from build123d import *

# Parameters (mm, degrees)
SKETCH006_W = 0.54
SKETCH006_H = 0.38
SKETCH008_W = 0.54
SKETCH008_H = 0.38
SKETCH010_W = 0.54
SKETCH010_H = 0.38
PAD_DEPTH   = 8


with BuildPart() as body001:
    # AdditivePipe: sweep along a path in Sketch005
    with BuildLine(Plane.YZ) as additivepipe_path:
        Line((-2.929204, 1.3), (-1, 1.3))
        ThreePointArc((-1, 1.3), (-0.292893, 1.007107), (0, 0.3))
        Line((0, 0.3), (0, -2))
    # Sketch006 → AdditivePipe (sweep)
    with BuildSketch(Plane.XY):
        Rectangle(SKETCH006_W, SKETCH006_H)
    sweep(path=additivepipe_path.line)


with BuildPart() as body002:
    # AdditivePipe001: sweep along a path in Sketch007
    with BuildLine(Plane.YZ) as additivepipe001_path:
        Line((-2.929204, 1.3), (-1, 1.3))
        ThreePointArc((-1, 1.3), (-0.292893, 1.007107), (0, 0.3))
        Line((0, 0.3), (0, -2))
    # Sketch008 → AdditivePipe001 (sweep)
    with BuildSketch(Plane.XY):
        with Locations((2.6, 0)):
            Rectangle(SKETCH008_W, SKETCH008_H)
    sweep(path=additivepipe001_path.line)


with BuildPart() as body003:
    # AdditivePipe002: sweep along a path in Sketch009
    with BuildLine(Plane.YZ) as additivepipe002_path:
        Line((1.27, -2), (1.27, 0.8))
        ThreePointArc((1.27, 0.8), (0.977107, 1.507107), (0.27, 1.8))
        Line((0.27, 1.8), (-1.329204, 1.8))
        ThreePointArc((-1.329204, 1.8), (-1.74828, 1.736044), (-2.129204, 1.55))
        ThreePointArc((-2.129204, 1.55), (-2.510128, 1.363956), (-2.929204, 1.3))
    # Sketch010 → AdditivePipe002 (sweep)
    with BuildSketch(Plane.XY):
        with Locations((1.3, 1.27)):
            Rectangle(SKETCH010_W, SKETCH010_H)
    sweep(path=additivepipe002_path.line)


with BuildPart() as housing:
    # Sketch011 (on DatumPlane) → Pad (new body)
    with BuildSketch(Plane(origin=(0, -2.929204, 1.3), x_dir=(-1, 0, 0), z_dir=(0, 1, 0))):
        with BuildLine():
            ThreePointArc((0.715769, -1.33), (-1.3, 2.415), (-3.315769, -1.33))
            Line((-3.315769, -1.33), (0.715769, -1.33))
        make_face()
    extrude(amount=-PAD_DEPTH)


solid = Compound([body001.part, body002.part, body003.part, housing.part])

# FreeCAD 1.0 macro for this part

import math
import FreeCAD as App
import Part
import Sketcher


def add_polygon(sketch, points):
    """Adds a closed chain of lines whose ends are joined by coincident constraints."""
    first, n = sketch.GeometryCount, len(points)
    for a, b in zip(points, points[1:] + points[:1]):
        sketch.addGeometry(Part.LineSegment(App.Vector(*a, 0), App.Vector(*b, 0)), False)
    for i in range(n):
        sketch.addConstraint(Sketcher.Constraint("Coincident", first + i, 2, first + (i + 1) % n, 1))

doc = App.newDocument("Part")
params = doc.addObject("Spreadsheet::Sheet", "Params")
for row, (alias, value) in enumerate([
    ("sketch1_width", "0.54 mm"),
    ("sketch1_height", "0.38 mm"),
    ("sketch2_radius", "0.999999 mm"),
    ("sketch2_height", "2.3 mm"),
    ("sketch3_width", "0.54 mm"),
    ("sketch3_height", "0.38 mm"),
    ("sketch4_radius", "0.999999 mm"),
    ("sketch4_height", "2.3 mm"),
    ("sketch5_width", "0.54 mm"),
    ("sketch5_height", "0.38 mm"),
    ("sketch6_radius", "0.999999 mm"),
    ("sketch6_height", "2.8 mm"),
    ("pad1_length", "8 mm"),
], start=1):
    params.set(f"A{row}", alias)
    params.set(f"B{row}", "=" + value)
    params.setAlias(f"B{row}", alias)

body = doc.addObject("PartDesign::Body", "Body")

# Sketch on XY plane
sketch1 = body.newObject("Sketcher::SketchObject", "Sketch")
sketch1.AttachmentSupport = (doc.getObject("XY_Plane"), [""])
sketch1.MapMode = "FlatFace"
add_polygon(sketch1, [(-0.27, 0.19), (-0.27, -0.19), (0.27, -0.19), (0.27, 0.19)])  # lines 0-3
sketch1.addConstraint([
    Sketcher.Constraint("Vertical", 0),
    Sketcher.Constraint("Horizontal", 1),
    Sketcher.Constraint("Vertical", 2),
    Sketcher.Constraint("Horizontal", 3),
    Sketcher.Constraint("Symmetric", 0, 2, 2, 2, -1, 1),
    Sketcher.Constraint("DistanceX", 1, 1, 1, 2, 0.54),
    Sketcher.Constraint("DistanceY", 0, 2, 0, 1, 0.38),
])
sketch1.setExpression("Constraints[9]", "Params.sketch1_width")
sketch1.setExpression("Constraints[10]", "Params.sketch1_height")

# Sketch on YZ plane
sketch2 = body.newObject("Sketcher::SketchObject", "Sketch001")
sketch2.AttachmentSupport = (doc.getObject("YZ_Plane"), [""])
sketch2.MapMode = "FlatFace"
sketch2.addGeometry([
    Part.LineSegment(App.Vector(-2.929204, 1.3, 0), App.Vector(-1, 1.3, 0)),
    Part.ArcOfCircle(Part.Circle(App.Vector(-0.999999, 0.300001, 0), App.Vector(0, 0, 1), 0.999999), math.radians(-0.000043), math.radians(90.000043)),
    Part.LineSegment(App.Vector(0, 0.3, 0), App.Vector(0, -2, 0)),
], False)
sketch2.addConstraint([
    Sketcher.Constraint("Tangent", 0, 2, 1, 2),
    Sketcher.Constraint("Tangent", 1, 1, 2, 1),
    Sketcher.Constraint("Horizontal", 0),
    Sketcher.Constraint("Vertical", 2),
    Sketcher.Constraint("PointOnObject", 1, 1, -2),
    Sketcher.Constraint("Radius", 1, 0.999999),
    Sketcher.Constraint("DistanceY", 2, 2, 2, 1, 2.3),
    Sketcher.Constraint("DistanceY", 2, 2, -1, 1, 2.0),
    Sketcher.Constraint("DistanceX", 0, 1, 0, 2, 1.929204),
])
sketch2.setExpression("Constraints[5]", "Params.sketch2_radius")
sketch2.setExpression("Constraints[6]", "Params.sketch2_height")
doc.recompute()

additivepipe = body.newObject("PartDesign::AdditivePipe", "AdditivePipe")
additivepipe.Profile = sketch1
additivepipe.Spine = (sketch2, ["Edge1", "Edge2", "Edge3"])
body2 = doc.addObject("PartDesign::Body", "Body001")

# Sketch on XY plane
sketch3 = body2.newObject("Sketcher::SketchObject", "Sketch002")
sketch3.AttachmentSupport = (doc.getObject("XY_Plane001"), [""])
sketch3.MapMode = "FlatFace"
add_polygon(sketch3, [(2.33, 0.19), (2.33, -0.19), (2.87, -0.19), (2.87, 0.19)])  # lines 0-3
sketch3.addConstraint([
    Sketcher.Constraint("Vertical", 0),
    Sketcher.Constraint("Horizontal", 1),
    Sketcher.Constraint("Vertical", 2),
    Sketcher.Constraint("Horizontal", 3),
    Sketcher.Constraint("DistanceX", 1, 1, 1, 2, 0.54),
    Sketcher.Constraint("DistanceY", 0, 2, 0, 1, 0.38),
    Sketcher.Constraint("DistanceX", -1, 1, 0, 2, 2.33),
    Sketcher.Constraint("DistanceY", 0, 2, -1, 1, 0.19),
])
sketch3.setExpression("Constraints[8]", "Params.sketch3_width")
sketch3.setExpression("Constraints[9]", "Params.sketch3_height")

# Sketch on YZ plane
sketch4 = body2.newObject("Sketcher::SketchObject", "Sketch003")
sketch4.AttachmentSupport = (doc.getObject("YZ_Plane001"), [""])
sketch4.MapMode = "FlatFace"
sketch4.addGeometry([
    Part.LineSegment(App.Vector(-2.929204, 1.3, 0), App.Vector(-1, 1.3, 0)),
    Part.ArcOfCircle(Part.Circle(App.Vector(-0.999999, 0.300001, 0), App.Vector(0, 0, 1), 0.999999), math.radians(-0.000043), math.radians(90.000043)),
    Part.LineSegment(App.Vector(0, 0.3, 0), App.Vector(0, -2, 0)),
], False)
sketch4.addConstraint([
    Sketcher.Constraint("Tangent", 0, 2, 1, 2),
    Sketcher.Constraint("Tangent", 1, 1, 2, 1),
    Sketcher.Constraint("Horizontal", 0),
    Sketcher.Constraint("Vertical", 2),
    Sketcher.Constraint("PointOnObject", 1, 1, -2),
    Sketcher.Constraint("Radius", 1, 0.999999),
    Sketcher.Constraint("DistanceY", 2, 2, 2, 1, 2.3),
    Sketcher.Constraint("DistanceY", 2, 2, -1, 1, 2.0),
    Sketcher.Constraint("DistanceX", 0, 1, 0, 2, 1.929204),
])
sketch4.setExpression("Constraints[5]", "Params.sketch4_radius")
sketch4.setExpression("Constraints[6]", "Params.sketch4_height")
doc.recompute()

additivepipe2 = body2.newObject("PartDesign::AdditivePipe", "AdditivePipe001")
additivepipe2.Profile = sketch3
additivepipe2.Spine = (sketch4, ["Edge1", "Edge2", "Edge3"])
body3 = doc.addObject("PartDesign::Body", "Body002")

# Sketch on XY plane
sketch5 = body3.newObject("Sketcher::SketchObject", "Sketch004")
sketch5.AttachmentSupport = (doc.getObject("XY_Plane002"), [""])
sketch5.MapMode = "FlatFace"
add_polygon(sketch5, [(1.03, 1.46), (1.03, 1.08), (1.57, 1.08), (1.57, 1.46)])  # lines 0-3
sketch5.addConstraint([
    Sketcher.Constraint("Vertical", 0),
    Sketcher.Constraint("Horizontal", 1),
    Sketcher.Constraint("Vertical", 2),
    Sketcher.Constraint("Horizontal", 3),
    Sketcher.Constraint("DistanceX", 1, 1, 1, 2, 0.54),
    Sketcher.Constraint("DistanceY", 0, 2, 0, 1, 0.38),
    Sketcher.Constraint("DistanceX", -1, 1, 0, 2, 1.03),
    Sketcher.Constraint("DistanceY", -1, 1, 0, 2, 1.08),
])
sketch5.setExpression("Constraints[8]", "Params.sketch5_width")
sketch5.setExpression("Constraints[9]", "Params.sketch5_height")

# Sketch on YZ plane
sketch6 = body3.newObject("Sketcher::SketchObject", "Sketch005")
sketch6.AttachmentSupport = (doc.getObject("YZ_Plane002"), [""])
sketch6.MapMode = "FlatFace"
sketch6.addGeometry([
    Part.LineSegment(App.Vector(1.27, -2, 0), App.Vector(1.27, 0.8, 0)),  # 0
    Part.ArcOfCircle(Part.Circle(App.Vector(0.270001, 0.800001, 0), App.Vector(0, 0, 1), 0.999999), math.radians(-0.000043), math.radians(90.000043)),  # 1
    Part.LineSegment(App.Vector(0.27, 1.8, 0), App.Vector(-1.329204, 1.8, 0)),  # 2
    Part.ArcOfCircle(Part.Circle(App.Vector(-1.329201, 0.39499, 0), App.Vector(0, 0, 1), 1.40501), math.radians(90.000123), math.radians(124.707926)),  # 3
    Part.ArcOfCircle(Part.Circle(App.Vector(-2.929207, 2.70501, 0), App.Vector(0, 0, 1), 1.40501), math.radians(-89.999877), math.radians(-55.292074)),  # 4
], False)
sketch6.addConstraint([
    Sketcher.Constraint("Tangent", 0, 2, 1, 1),
    Sketcher.Constraint("Tangent", 1, 2, 2, 1),
    Sketcher.Constraint("Coincident", 2, 2, 3, 1),
    Sketcher.Constraint("Tangent", 3, 2, 4, 2),
    Sketcher.Constraint("Vertical", 0),
    Sketcher.Constraint("Horizontal", 2),
    Sketcher.Constraint("Equal", 3, 4),
    Sketcher.Constraint("Radius", 1, 0.999999),
    Sketcher.Constraint("DistanceY", 0, 1, 0, 2, 2.8),
    Sketcher.Constraint("DistanceY", 0, 1, -1, 1, 2.0),
    Sketcher.Constraint("DistanceY", -1, 1, 4, 1, 1.3),
    Sketcher.Constraint("DistanceX", 3, 2, 2, 2, 0.8),
    Sketcher.Constraint("DistanceX", 4, 1, 3, 2, 0.8),
    Sketcher.Constraint("DistanceX", -1, 1, 1, 3, 0.270001),
    Sketcher.Constraint("Radius", 3, 1.40501),
    Sketcher.Constraint("DistanceX", 3, 3, -1, 1, 1.329201),
])
sketch6.setExpression("Constraints[7]", "Params.sketch6_radius")
sketch6.setExpression("Constraints[8]", "Params.sketch6_height")
doc.recompute()

additivepipe3 = body3.newObject("PartDesign::AdditivePipe", "AdditivePipe002")
additivepipe3.Profile = sketch5
additivepipe3.Spine = (sketch6, ["Edge1", "Edge2", "Edge3", "Edge4", "Edge5"])
body4 = doc.addObject("PartDesign::Body", "Body003")

# Sketch on XZ plane
sketch7 = body4.newObject("Sketcher::SketchObject", "Sketch006")
sketch7.AttachmentSupport = (doc.getObject("XZ_Plane003"), [""])
sketch7.MapMode = "FlatFace"
sketch7.AttachmentOffset = App.Placement(App.Vector(0, 0, 2.929204), App.Rotation())
sketch7.addGeometry([
    Part.ArcOfCircle(Part.Circle(App.Vector(1.3, 1.3, 0), App.Vector(0, 0, 1), 2.415), math.radians(-33.416742), math.radians(213.416742)),
    Part.LineSegment(App.Vector(3.315769, -0.03, 0), App.Vector(-0.715769, -0.03, 0)),
], False)
sketch7.addConstraint([
    Sketcher.Constraint("Coincident", 0, 1, 1, 1),
    Sketcher.Constraint("Coincident", 1, 2, 0, 2),
    Sketcher.Constraint("Horizontal", 1),
    Sketcher.Constraint("Radius", 0, 2.415),
    Sketcher.Constraint("DistanceX", -1, 1, 0, 3, 1.3),
    Sketcher.Constraint("DistanceY", -1, 1, 0, 3, 1.3),
    Sketcher.Constraint("DistanceY", 0, 1, -1, 1, 0.03),
])
pad1 = body4.newObject("PartDesign::Pad", "Pad")
pad1.Profile = sketch7
pad1.setExpression("Length", "Params.pad1_length")

doc.recompute()
